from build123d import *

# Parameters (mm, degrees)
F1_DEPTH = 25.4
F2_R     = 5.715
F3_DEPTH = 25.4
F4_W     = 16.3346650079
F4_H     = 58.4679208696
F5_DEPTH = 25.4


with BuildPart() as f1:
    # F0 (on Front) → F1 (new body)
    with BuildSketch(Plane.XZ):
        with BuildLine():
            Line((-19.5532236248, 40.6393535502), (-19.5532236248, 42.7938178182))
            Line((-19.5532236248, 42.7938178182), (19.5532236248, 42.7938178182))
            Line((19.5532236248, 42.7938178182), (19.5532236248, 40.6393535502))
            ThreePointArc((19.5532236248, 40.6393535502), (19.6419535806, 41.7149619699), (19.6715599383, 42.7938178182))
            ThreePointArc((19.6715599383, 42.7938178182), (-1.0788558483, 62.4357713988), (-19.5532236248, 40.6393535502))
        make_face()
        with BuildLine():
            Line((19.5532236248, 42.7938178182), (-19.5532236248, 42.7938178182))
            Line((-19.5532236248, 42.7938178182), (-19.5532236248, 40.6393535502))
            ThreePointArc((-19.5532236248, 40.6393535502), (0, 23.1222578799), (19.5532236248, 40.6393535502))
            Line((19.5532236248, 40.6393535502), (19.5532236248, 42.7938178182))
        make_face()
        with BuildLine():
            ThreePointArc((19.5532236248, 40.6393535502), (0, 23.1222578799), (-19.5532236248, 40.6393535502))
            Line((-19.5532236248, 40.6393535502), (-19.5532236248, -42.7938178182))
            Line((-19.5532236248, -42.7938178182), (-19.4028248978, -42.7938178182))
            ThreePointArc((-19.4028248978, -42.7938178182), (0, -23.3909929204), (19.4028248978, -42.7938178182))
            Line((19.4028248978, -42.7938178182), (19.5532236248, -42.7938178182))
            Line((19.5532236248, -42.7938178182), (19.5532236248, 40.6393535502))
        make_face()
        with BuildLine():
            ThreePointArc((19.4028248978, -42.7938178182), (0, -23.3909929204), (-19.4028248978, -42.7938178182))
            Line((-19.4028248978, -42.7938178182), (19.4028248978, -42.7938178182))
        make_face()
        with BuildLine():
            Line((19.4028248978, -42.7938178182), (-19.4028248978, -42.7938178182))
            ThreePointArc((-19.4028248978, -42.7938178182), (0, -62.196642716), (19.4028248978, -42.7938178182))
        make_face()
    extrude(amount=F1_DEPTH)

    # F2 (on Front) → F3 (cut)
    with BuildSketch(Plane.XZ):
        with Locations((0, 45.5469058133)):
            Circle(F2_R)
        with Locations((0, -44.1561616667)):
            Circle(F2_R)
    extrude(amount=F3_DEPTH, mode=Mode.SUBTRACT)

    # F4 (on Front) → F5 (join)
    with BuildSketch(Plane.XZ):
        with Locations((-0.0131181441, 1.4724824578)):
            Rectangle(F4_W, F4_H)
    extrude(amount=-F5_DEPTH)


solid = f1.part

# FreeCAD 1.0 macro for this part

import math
import FreeCAD as App
import Part
import Sketcher
Q = App.Units.Quantity

doc = App.newDocument("Part")
body = doc.addObject("PartDesign::Body", "Body")

# Sketch on XZ plane
sketch1 = body.newObject("Sketcher::SketchObject", "Sketch")
sketch1.AttachmentSupport = (doc.getObject("XZ_Plane"), [""])
sketch1.MapMode = "FlatFace"
sketch1.addGeometry([
    Part.ArcOfCircle(Part.Circle(App.Vector(0, 42.793818, 0), App.Vector(0, 0, 1), 19.67156), math.radians(-6.287749), math.radians(0)),  # 0
    Part.ArcOfCircle(Part.Circle(App.Vector(0, 42.793818, 0), App.Vector(0, 0, 1), 19.67156), math.radians(0), math.radians(186.287749)),  # 1
    Part.LineSegment(App.Vector(-19.553224, 40.639354, 0), App.Vector(-19.553224, -42.793818, 0)),  # 2
    Part.LineSegment(App.Vector(-19.553224, -42.793818, 0), App.Vector(-19.402825, -42.793818, 0)),  # 3
    Part.ArcOfCircle(Part.Circle(App.Vector(0, -42.793818, 0), App.Vector(0, 0, 1), 19.402825), math.radians(180), math.radians(360)),  # 4
    Part.LineSegment(App.Vector(19.402825, -42.793818, 0), App.Vector(19.553224, -42.793818, 0)),  # 5
    Part.LineSegment(App.Vector(19.553224, -42.793818, 0), App.Vector(19.553224, 40.639354, 0)),  # 6
], False)
sketch1.addConstraint([
    Sketcher.Constraint("Tangent", 0, 2, 1, 1),
    Sketcher.Constraint("Coincident", 1, 2, 2, 1),
    Sketcher.Constraint("Coincident", 2, 2, 3, 1),
    Sketcher.Constraint("Coincident", 3, 2, 4, 1),
    Sketcher.Constraint("Coincident", 4, 2, 5, 1),
    Sketcher.Constraint("Coincident", 5, 2, 6, 1),
    Sketcher.Constraint("Coincident", 6, 2, 0, 1),
    Sketcher.Constraint("Vertical", 2),
    Sketcher.Constraint("Horizontal", 3),
    Sketcher.Constraint("Horizontal", 5),
    Sketcher.Constraint("Vertical", 6),
    Sketcher.Constraint("Equal", 0, 1),
    Sketcher.Constraint("Symmetric", 0, 3, 4, 3, -1, 1),
    Sketcher.Constraint("Symmetric", 3, 2, 4, 2, -2),
    Sketcher.Constraint("Horizontal", 1, 3, 0, 2),
    Sketcher.Constraint("Horizontal", 4, 3, 2, 2),
    Sketcher.Constraint("Horizontal", 1, 2, 6, 2),
    Sketcher.Constraint("Radius", 0, Q("19.67156 mm")),
    Sketcher.Constraint("DistanceX", 3, 1, 3, 2, Q("0.150399 mm")),
    Sketcher.Constraint("Radius", 4, Q("19.402825 mm")),
    Sketcher.Constraint("DistanceY", 2, 2, 2, 1, Q("83.433171 mm")),
])
pad1 = body.newObject("PartDesign::Pad", "Pad")
pad1.Profile = sketch1
pad1.Length = Q("1 in")

# Sketch on XZ plane
sketch2 = body.newObject("Sketcher::SketchObject", "Sketch001")
sketch2.AttachmentSupport = (doc.getObject("XZ_Plane"), [""])
sketch2.MapMode = "FlatFace"
sketch2.addGeometry([
    Part.Circle(App.Vector(0, 45.546906, 0), App.Vector(0, 0, 1), 5.715),
    Part.Circle(App.Vector(0, -44.156162, 0), App.Vector(0, 0, 1), 5.715),
], False)
sketch2.addConstraint([
    Sketcher.Constraint("Equal", 0, 1),
    Sketcher.Constraint("PointOnObject", 0, 3, -2),
    Sketcher.Constraint("PointOnObject", 1, 3, -2),
    Sketcher.Constraint("Diameter", 0, Q("0.45 in")),
    Sketcher.Constraint("DistanceY", 1, 3, -1, 1, Q("44.156162 mm")),
    Sketcher.Constraint("DistanceY", -1, 1, 0, 3, Q("45.546906 mm")),
])
pocket1 = body.newObject("PartDesign::Pocket", "Pocket")
pocket1.Profile = sketch2
pocket1.Length = Q("1 in")
pocket1.Reversed = True

# Sketch on XZ plane
sketch3 = body.newObject("Sketcher::SketchObject", "Sketch002")
sketch3.AttachmentSupport = (doc.getObject("XZ_Plane"), [""])
sketch3.MapMode = "FlatFace"
sketch3.addGeometry([
    Part.LineSegment(App.Vector(-8.180451, 30.706443, 0), App.Vector(-8.180451, -27.761478, 0)),
    Part.LineSegment(App.Vector(-8.180451, -27.761478, 0), App.Vector(8.154214, -27.761478, 0)),
    Part.LineSegment(App.Vector(8.154214, -27.761478, 0), App.Vector(8.154214, 30.706443, 0)),
    Part.LineSegment(App.Vector(8.154214, 30.706443, 0), App.Vector(-8.180451, 30.706443, 0)),
], False)
sketch3.addConstraint([
    Sketcher.Constraint("Coincident", 0, 2, 1, 1),
    Sketcher.Constraint("Coincident", 1, 2, 2, 1),
    Sketcher.Constraint("Coincident", 2, 2, 3, 1),
    Sketcher.Constraint("Coincident", 3, 2, 0, 1),
    Sketcher.Constraint("Vertical", 0),
    Sketcher.Constraint("Horizontal", 1),
    Sketcher.Constraint("Vertical", 2),
    Sketcher.Constraint("Horizontal", 3),
    Sketcher.Constraint("DistanceY", 0, 2, 0, 1, Q("58.467921 mm")),
    Sketcher.Constraint("DistanceX", 1, 1, 1, 2, Q("16.334665 mm")),
    Sketcher.Constraint("DistanceX", 0, 2, -1, 1, Q("8.180451 mm")),
    Sketcher.Constraint("DistanceY", 0, 2, -1, 1, Q("27.761478 mm")),
])
pad2 = body.newObject("PartDesign::Pad", "Pad001")
pad2.Profile = sketch3
pad2.Length = Q("1 in")
pad2.Reversed = True

doc.recompute()
